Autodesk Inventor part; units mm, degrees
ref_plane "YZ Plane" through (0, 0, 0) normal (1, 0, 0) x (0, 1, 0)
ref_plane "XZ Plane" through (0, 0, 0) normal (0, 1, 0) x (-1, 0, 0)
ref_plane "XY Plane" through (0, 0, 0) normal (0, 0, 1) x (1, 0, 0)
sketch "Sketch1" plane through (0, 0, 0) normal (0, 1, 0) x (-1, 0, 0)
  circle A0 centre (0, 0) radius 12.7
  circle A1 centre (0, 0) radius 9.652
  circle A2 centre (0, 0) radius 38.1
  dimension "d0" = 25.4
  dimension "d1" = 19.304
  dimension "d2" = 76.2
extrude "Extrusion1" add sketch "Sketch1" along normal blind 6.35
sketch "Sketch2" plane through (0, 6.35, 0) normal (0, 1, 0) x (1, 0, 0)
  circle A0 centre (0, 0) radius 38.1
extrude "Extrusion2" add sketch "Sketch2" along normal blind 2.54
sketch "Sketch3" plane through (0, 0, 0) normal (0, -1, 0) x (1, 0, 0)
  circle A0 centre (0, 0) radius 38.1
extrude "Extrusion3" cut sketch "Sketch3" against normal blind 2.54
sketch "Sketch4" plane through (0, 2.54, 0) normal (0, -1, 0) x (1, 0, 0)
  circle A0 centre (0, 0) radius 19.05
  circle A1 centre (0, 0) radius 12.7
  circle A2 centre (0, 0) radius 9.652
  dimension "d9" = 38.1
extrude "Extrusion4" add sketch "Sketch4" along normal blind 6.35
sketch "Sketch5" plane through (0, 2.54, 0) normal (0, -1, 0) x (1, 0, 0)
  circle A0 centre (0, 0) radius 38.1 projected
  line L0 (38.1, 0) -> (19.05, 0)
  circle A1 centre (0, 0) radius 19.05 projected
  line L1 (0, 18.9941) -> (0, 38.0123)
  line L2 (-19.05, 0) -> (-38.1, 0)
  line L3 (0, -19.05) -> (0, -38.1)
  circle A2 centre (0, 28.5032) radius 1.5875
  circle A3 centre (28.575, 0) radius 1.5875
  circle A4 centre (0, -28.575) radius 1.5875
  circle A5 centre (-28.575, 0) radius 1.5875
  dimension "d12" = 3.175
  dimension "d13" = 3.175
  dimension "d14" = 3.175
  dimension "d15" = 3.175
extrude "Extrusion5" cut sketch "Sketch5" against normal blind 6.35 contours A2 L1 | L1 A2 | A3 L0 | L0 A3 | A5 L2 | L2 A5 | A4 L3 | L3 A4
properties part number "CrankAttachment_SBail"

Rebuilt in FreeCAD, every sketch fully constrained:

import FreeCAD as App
import Part
import Sketcher
Q = App.Units.Quantity

doc = App.newDocument("Part")
body = doc.addObject("PartDesign::Body", "Body")
body.AllowCompound = True

# Sketch on XZ plane
sketch1 = body.newObject("Sketcher::SketchObject", "Sketch")
sketch1.AttachmentSupport = (doc.getObject("XZ_Plane"), [""])
sketch1.MapMode = "FlatFace"
sketch1.addGeometry([
    Part.Circle(App.Vector(0, 0, 0), App.Vector(0, 0, 1), 10),
    Part.Circle(App.Vector(0, 0, 0), App.Vector(0, 0, 1), 38),
    Part.Circle(App.Vector(0, 0, 0), App.Vector(0, 0, 1), 13),
], False)
sketch1.addConstraint([
    Sketcher.Constraint("Coincident", 0, 3, -1, 1),
    Sketcher.Constraint("Coincident", 1, 3, -1, 1),
    Sketcher.Constraint("Coincident", 2, 3, -1, 1),
    Sketcher.Constraint("Diameter", 1, Q("3 in")),
    Sketcher.Constraint("Diameter", 2, Q("1 in")),
    Sketcher.Constraint("Diameter", 0, Q("0.76 in")),
])
pad1 = body.newObject("PartDesign::Pad", "Pad")
pad1.Profile = sketch1
pad1.Length = Q("0.25 in")
pad1.Reversed = True

# Sketch on XZ plane
sketch2 = body.newObject("Sketcher::SketchObject", "Sketch001")
sketch2.AttachmentSupport = (doc.getObject("XZ_Plane"), [""])
sketch2.MapMode = "FlatFace"
sketch2.AttachmentOffset = App.Placement(App.Vector(0, 0, -0.25 * 25.4), App.Rotation())
sketch2.addGeometry(Part.Circle(App.Vector(0, 0, 0), App.Vector(0, 0, 1), 38), False)
sketch2.addConstraint([
    Sketcher.Constraint("Coincident", 0, 3, -1, 1),
    Sketcher.Constraint("Diameter", 0, Q("3 in")),
])
pad2 = body.newObject("PartDesign::Pad", "Pad001")
pad2.Profile = sketch2
pad2.Length = Q("0.1 in")
pad2.Reversed = True

# Sketch on XZ plane
sketch3 = body.newObject("Sketcher::SketchObject", "Sketch002")
sketch3.AttachmentSupport = (doc.getObject("XZ_Plane"), [""])
sketch3.MapMode = "FlatFace"
sketch3.addGeometry(Part.Circle(App.Vector(0, 0, 0), App.Vector(0, 0, 1), 38), False)
sketch3.addConstraint([
    Sketcher.Constraint("Coincident", 0, 3, -1, 1),
    Sketcher.Constraint("Diameter", 0, Q("3 in")),
])
pocket1 = body.newObject("PartDesign::Pocket", "Pocket")
pocket1.Profile = sketch3
pocket1.Length = Q("0.1 in")

# Sketch on XZ plane
sketch4 = body.newObject("Sketcher::SketchObject", "Sketch003")
sketch4.AttachmentSupport = (doc.getObject("XZ_Plane"), [""])
sketch4.MapMode = "FlatFace"
sketch4.AttachmentOffset = App.Placement(App.Vector(0, 0, -0.1 * 25.4), App.Rotation())
sketch4.addGeometry([
    Part.Circle(App.Vector(0, 0, 0), App.Vector(0, 0, 1), 19),
    Part.Circle(App.Vector(0, 0, 0), App.Vector(0, 0, 1), 13),
    Part.Circle(App.Vector(0, 0, 0), App.Vector(0, 0, 1), 10),
], False)
sketch4.addConstraint([
    Sketcher.Constraint("Coincident", 0, 3, -1, 1),
    Sketcher.Constraint("Coincident", 1, 3, -1, 1),
    Sketcher.Constraint("Coincident", 2, 3, -1, 1),
    Sketcher.Constraint("Diameter", 0, Q("1.5 in")),
    Sketcher.Constraint("Diameter", 1, Q("1 in")),
    Sketcher.Constraint("Diameter", 2, Q("0.76 in")),
])
pad3 = body.newObject("PartDesign::Pad", "Pad002")
pad3.Profile = sketch4
pad3.Length = Q("0.25 in")

# Sketch on XZ plane
sketch5 = body.newObject("Sketcher::SketchObject", "Sketch004")
sketch5.AttachmentSupport = (doc.getObject("XZ_Plane"), [""])
sketch5.MapMode = "FlatFace"
sketch5.AttachmentOffset = App.Placement(App.Vector(0, 0, -0.1 * 25.4), App.Rotation())
sketch5.addGeometry([
    Part.Circle(App.Vector(0, 28.5, 0), App.Vector(0, 0, 1), 1.6),
    Part.Circle(App.Vector(28.6, 0, 0), App.Vector(0, 0, 1), 1.6),
    Part.Circle(App.Vector(-28.6, 0, 0), App.Vector(0, 0, 1), 1.6),
    Part.Circle(App.Vector(0, -28.6, 0), App.Vector(0, 0, 1), 1.6),
], False)
sketch5.addConstraint([
    Sketcher.Constraint("Equal", 0, 1),
    Sketcher.Constraint("Equal", 1, 2),
    Sketcher.Constraint("Equal", 2, 3),
    Sketcher.Constraint("Symmetric", 1, 3, 2, 3, -1, 1),
    Sketcher.Constraint("PointOnObject", 0, 3, -2),
    Sketcher.Constraint("PointOnObject", 1, 3, -1),
    Sketcher.Constraint("PointOnObject", 3, 3, -2),
    Sketcher.Constraint("Diameter", 0, Q("0.125 in")),
    Sketcher.Constraint("DistanceX", 2, 3, 1, 3, Q("2.25 in")),
    Sketcher.Constraint("DistanceY", 3, 3, -1, 1, Q("1.125 in")),
    Sketcher.Constraint("DistanceY", -1, 1, 0, 3, 28.5032),
])
pocket2 = body.newObject("PartDesign::Pocket", "Pocket001")
pocket2.Profile = sketch5
pocket2.Length = Q("0.25 in")

doc.recompute()
